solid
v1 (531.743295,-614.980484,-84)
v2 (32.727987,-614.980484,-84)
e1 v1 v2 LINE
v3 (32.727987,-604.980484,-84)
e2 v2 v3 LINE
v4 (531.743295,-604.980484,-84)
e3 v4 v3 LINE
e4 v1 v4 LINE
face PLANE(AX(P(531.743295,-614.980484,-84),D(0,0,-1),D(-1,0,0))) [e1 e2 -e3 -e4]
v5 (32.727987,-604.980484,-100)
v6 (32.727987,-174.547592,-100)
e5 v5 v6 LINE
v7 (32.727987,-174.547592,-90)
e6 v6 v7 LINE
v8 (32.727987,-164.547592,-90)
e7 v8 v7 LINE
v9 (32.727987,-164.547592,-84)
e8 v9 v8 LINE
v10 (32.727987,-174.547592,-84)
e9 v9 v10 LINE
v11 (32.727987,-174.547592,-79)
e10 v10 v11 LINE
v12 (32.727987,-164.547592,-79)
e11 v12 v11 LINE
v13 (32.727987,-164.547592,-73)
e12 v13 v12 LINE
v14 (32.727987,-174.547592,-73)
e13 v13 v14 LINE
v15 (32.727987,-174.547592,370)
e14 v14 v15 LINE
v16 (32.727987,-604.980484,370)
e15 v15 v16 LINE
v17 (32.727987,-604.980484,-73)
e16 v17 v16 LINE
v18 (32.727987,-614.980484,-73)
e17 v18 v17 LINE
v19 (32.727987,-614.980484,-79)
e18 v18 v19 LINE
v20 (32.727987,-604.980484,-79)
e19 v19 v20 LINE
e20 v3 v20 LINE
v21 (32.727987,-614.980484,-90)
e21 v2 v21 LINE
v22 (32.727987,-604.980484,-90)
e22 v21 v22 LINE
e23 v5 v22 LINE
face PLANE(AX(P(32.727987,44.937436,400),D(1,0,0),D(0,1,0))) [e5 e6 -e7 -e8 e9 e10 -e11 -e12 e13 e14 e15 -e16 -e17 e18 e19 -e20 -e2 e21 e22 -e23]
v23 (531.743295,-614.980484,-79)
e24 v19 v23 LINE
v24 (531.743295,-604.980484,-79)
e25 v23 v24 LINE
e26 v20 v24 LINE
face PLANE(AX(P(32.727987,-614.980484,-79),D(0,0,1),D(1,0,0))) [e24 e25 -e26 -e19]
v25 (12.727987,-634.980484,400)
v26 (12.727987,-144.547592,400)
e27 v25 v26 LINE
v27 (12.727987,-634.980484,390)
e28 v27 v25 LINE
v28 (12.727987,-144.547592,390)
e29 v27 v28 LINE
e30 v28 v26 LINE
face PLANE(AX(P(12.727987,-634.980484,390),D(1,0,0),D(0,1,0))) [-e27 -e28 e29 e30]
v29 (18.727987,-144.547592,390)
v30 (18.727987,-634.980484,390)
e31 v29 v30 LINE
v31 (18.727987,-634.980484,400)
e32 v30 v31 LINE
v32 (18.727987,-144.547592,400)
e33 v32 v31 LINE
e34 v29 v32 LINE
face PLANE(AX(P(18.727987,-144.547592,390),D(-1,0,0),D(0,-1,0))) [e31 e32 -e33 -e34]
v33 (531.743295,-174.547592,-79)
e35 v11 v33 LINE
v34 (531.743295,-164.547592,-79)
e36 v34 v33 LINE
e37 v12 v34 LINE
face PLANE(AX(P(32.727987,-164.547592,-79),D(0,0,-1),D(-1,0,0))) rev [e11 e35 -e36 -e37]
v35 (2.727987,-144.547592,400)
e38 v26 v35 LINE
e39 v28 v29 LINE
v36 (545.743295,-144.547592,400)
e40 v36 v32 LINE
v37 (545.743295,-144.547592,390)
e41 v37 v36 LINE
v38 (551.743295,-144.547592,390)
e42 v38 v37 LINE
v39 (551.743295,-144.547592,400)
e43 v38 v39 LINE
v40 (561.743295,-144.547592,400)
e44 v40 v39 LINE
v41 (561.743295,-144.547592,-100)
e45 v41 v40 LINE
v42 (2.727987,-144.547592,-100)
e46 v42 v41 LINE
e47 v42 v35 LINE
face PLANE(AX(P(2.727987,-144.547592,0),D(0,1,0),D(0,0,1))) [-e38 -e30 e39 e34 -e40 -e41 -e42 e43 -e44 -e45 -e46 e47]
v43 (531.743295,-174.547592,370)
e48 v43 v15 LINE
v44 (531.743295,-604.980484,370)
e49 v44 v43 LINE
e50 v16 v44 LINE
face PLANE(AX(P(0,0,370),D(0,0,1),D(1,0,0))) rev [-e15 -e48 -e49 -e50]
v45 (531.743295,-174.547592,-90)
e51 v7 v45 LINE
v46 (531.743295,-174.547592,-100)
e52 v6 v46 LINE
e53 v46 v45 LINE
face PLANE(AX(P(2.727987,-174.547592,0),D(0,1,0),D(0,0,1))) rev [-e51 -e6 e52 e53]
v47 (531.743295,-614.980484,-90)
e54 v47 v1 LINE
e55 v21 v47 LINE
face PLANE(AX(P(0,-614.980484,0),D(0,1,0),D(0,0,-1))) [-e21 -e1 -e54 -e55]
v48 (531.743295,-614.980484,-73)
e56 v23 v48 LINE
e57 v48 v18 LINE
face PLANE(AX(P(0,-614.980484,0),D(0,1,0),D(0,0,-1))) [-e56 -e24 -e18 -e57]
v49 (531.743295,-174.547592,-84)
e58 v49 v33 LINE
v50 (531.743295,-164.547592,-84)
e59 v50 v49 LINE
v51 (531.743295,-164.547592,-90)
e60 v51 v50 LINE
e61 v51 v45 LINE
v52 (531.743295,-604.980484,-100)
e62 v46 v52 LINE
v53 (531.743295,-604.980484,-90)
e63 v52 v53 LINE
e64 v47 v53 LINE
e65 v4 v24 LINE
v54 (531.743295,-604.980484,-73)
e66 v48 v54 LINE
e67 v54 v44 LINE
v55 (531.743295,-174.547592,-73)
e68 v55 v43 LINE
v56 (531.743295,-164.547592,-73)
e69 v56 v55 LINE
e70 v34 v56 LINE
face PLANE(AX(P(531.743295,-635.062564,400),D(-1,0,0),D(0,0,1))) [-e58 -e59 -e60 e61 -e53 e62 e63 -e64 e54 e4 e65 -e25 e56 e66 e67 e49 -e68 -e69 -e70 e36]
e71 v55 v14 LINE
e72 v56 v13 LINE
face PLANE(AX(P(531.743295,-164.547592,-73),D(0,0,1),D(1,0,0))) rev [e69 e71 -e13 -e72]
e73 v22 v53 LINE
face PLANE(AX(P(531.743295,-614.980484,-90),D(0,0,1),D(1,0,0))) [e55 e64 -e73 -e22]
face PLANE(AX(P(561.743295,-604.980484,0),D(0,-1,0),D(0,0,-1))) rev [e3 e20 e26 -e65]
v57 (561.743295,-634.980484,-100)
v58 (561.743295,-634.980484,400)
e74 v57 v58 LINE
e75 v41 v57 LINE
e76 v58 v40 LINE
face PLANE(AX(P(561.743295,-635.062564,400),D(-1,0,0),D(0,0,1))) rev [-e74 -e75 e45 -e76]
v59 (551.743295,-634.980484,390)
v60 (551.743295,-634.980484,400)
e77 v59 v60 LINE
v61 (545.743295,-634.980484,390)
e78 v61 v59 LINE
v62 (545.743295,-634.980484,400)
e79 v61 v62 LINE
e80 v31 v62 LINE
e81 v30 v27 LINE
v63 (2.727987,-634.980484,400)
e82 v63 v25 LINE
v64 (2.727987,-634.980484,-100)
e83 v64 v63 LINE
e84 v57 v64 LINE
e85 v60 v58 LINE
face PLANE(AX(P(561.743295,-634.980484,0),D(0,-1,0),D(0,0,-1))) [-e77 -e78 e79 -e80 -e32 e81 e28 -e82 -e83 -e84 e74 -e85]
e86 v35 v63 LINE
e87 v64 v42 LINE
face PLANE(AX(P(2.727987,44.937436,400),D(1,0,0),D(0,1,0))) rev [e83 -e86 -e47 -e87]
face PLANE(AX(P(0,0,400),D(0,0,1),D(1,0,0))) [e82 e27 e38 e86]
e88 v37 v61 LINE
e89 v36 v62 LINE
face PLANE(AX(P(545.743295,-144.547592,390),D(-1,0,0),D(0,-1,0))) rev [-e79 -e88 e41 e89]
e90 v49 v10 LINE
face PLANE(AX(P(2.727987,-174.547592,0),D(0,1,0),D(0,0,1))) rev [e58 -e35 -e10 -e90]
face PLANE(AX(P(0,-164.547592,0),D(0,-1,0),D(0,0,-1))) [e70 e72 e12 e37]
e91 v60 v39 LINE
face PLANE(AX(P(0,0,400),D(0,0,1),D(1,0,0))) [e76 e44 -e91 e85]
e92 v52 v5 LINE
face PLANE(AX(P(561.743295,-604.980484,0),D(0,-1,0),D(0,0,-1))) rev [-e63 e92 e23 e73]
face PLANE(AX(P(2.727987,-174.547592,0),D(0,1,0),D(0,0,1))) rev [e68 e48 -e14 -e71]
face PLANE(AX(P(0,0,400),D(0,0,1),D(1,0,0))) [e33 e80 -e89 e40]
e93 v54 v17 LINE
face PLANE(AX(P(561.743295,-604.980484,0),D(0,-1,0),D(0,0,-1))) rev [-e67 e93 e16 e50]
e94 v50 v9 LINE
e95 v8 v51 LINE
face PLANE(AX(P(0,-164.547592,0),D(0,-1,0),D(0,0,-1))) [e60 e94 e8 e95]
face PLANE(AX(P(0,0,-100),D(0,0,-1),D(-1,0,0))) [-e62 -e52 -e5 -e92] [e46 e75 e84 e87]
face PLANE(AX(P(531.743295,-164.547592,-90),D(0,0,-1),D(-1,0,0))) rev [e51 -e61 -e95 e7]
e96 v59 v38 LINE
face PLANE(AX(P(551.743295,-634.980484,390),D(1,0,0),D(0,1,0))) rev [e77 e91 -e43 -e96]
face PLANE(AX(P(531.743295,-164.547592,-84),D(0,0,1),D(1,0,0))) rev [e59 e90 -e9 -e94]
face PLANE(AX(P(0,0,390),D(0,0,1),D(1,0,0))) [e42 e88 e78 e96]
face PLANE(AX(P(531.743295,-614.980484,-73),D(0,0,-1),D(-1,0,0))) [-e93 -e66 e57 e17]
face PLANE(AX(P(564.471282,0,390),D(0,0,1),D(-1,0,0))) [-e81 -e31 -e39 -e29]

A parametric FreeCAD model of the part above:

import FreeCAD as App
import Part
import Sketcher


def faces_at(feature, points):
    """Names of the faces that lie closest to the given points."""
    faces = feature.Shape.Faces
    near = lambda p: min(range(len(faces)), key=lambda i: faces[i].distToShape(Part.Vertex(*p))[0])
    return sorted({f"Face{near(p) + 1}" for p in points})


def add_polygon(sketch, points):
    """Adds a closed chain of lines whose ends are joined by coincident constraints."""
    first, n = sketch.GeometryCount, len(points)
    for a, b in zip(points, points[1:] + points[:1]):
        sketch.addGeometry(Part.LineSegment(App.Vector(*a, 0), App.Vector(*b, 0)), False)
    for i in range(n):
        sketch.addConstraint(Sketcher.Constraint("Coincident", first + i, 2, first + (i + 1) % n, 1))

doc = App.newDocument("Part")
params = doc.addObject("Spreadsheet::Sheet", "Params")
for row, (alias, value) in enumerate([
    ("sketch1_height", "680 mm"),
    ("pad1_length", "400 mm"),
    ("sketch2_height", "875.38 mm"),
    ("pad2_length", "100 mm"),
    ("thickness_wall", "30 mm"),
    ("sketch4_height", "6 mm"),
    ("pocket2_length", "10 mm"),
    ("sketch5_height", "6 mm"),
    ("pocket3_length", "10 mm"),
    ("sketch6_width", "6 mm"),
    ("pocket4_length", "10 mm"),
], start=1):
    params.set(f"A{row}", alias)
    params.set(f"B{row}", "=" + value)
    params.setAlias(f"B{row}", alias)

body = doc.addObject("PartDesign::Body", "Body")

# Sketch on XY plane
sketch1 = body.newObject("Sketcher::SketchObject", "Sketch")
sketch1.AttachmentSupport = (doc.getObject("XY_Plane"), [""])
sketch1.MapMode = "FlatFace"
add_polygon(sketch1, [(3, 45), (3, -635), (562, -635), (562, 45)])  # lines 0-3
sketch1.addConstraint(Sketcher.Constraint("Vertical", 0))
sketch1.addConstraint(Sketcher.Constraint("Horizontal", 1))
sketch1.addConstraint(Sketcher.Constraint("Vertical", 2))
sketch1.addConstraint(Sketcher.Constraint("Horizontal", 3))
sketch1.addConstraint(Sketcher.Constraint("DistanceY", 0, 2, 0, 1, 680.0))
sketch1.addConstraint(Sketcher.Constraint("DistanceX", 1, 1, 1, 2, 559.015308))
sketch1.addConstraint(Sketcher.Constraint("DistanceX", -1, 1, 0, 2, 2.727987))
sketch1.addConstraint(Sketcher.Constraint("DistanceY", 0, 2, -1, 1, 635.062564))
sketch1.setExpression("Constraints[8]", "Params.sketch1_height")
pad1 = body.newObject("PartDesign::Pad", "Pad")
pad1.Profile = sketch1
pad1.setExpression("Length", "Params.pad1_length")

# Sketch on XY plane
sketch2 = body.newObject("Sketcher::SketchObject", "Sketch001")
sketch2.AttachmentSupport = (doc.getObject("XY_Plane"), [""])
sketch2.MapMode = "FlatFace"
sketch2.AttachmentOffset = App.Placement(App.Vector(0, 0, 400), App.Rotation())
add_polygon(sketch2, [(-95, 143), (-95, -733), (659, -733), (659, 143)])  # lines 0-3
add_polygon(sketch2, [(562, -635), (3, -635), (3, -145), (562, -145)])  # lines 4-7
sketch2.addConstraint(Sketcher.Constraint("Vertical", 0))
sketch2.addConstraint(Sketcher.Constraint("Horizontal", 1))
sketch2.addConstraint(Sketcher.Constraint("Vertical", 2))
sketch2.addConstraint(Sketcher.Constraint("Horizontal", 3))
sketch2.addConstraint(Sketcher.Constraint("Horizontal", 4))
sketch2.addConstraint(Sketcher.Constraint("Vertical", 5))
sketch2.addConstraint(Sketcher.Constraint("Horizontal", 6))
sketch2.addConstraint(Sketcher.Constraint("Vertical", 7))
sketch2.addConstraint(Sketcher.Constraint("DistanceY", 0, 2, 0, 1, 875.38))
sketch2.addConstraint(Sketcher.Constraint("DistanceX", 1, 1, 1, 2, 754.395))
sketch2.addConstraint(Sketcher.Constraint("DistanceY", 5, 1, 5, 2, 490.432892))
sketch2.addConstraint(Sketcher.Constraint("DistanceX", 4, 2, 4, 1, 559.015308))
sketch2.addConstraint(Sketcher.Constraint("DistanceY", 0, 2, 4, 2, 97.77227))
sketch2.addConstraint(Sketcher.Constraint("DistanceX", 0, 2, -1, 1, 94.962058))
sketch2.addConstraint(Sketcher.Constraint("DistanceY", 0, 2, -1, 1, 732.752754))
sketch2.addConstraint(Sketcher.Constraint("DistanceX", -1, 1, 4, 2, 2.727987))
sketch2.setExpression("Constraints[16]", "Params.sketch2_height")
pocket1 = body.newObject("PartDesign::Pocket", "Pocket")
pocket1.Profile = sketch2
pocket1.Type = "ThroughAll"

# Sketch on XY plane
sketch3 = body.newObject("Sketcher::SketchObject", "Sketch002")
sketch3.AttachmentSupport = (doc.getObject("XY_Plane"), [""])
sketch3.MapMode = "FlatFace"
add_polygon(sketch3, [(562, -145), (562, -635), (3, -635), (3, -145)])  # lines 0-3
sketch3.addConstraint(Sketcher.Constraint("Vertical", 0))
sketch3.addConstraint(Sketcher.Constraint("Horizontal", 1))
sketch3.addConstraint(Sketcher.Constraint("Vertical", 2))
sketch3.addConstraint(Sketcher.Constraint("Horizontal", 3))
sketch3.addConstraint(Sketcher.Constraint("DistanceY", 0, 2, 0, 1, 490.432892))
sketch3.addConstraint(Sketcher.Constraint("DistanceX", 1, 2, 1, 1, 559.015308))
sketch3.addConstraint(Sketcher.Constraint("DistanceX", -1, 1, 0, 2, 561.743295))
sketch3.addConstraint(Sketcher.Constraint("DistanceY", 0, 2, -1, 1, 634.980484))
pad2 = body.newObject("PartDesign::Pad", "Pad001")
pad2.Profile = sketch3
pad2.setExpression("Length", "Params.pad2_length")
pad2.Reversed = True
doc.recompute()

thickness = body.newObject("PartDesign::Thickness", "Thickness")
thickness.Base = (pad2, faces_at(pad2, [(282.236, -389.764, -100)]))
thickness.setExpression("Value", "Params.thickness_wall")
thickness.Reversed = True
thickness.Join = "Intersection"

# Sketch on XZ plane
sketch4 = body.newObject("Sketcher::SketchObject", "Sketch003")
sketch4.AttachmentSupport = (doc.getObject("XZ_Plane"), [""])
sketch4.MapMode = "FlatFace"
sketch4.AttachmentOffset = App.Placement(App.Vector(0, 0, 174.547592), App.Rotation())
add_polygon(sketch4, [(33, -84), (33, -90), (532, -90), (532, -84)])  # lines 0-3
sketch4.addConstraint(Sketcher.Constraint("Vertical", 0))
sketch4.addConstraint(Sketcher.Constraint("Horizontal", 1))
sketch4.addConstraint(Sketcher.Constraint("Vertical", 2))
sketch4.addConstraint(Sketcher.Constraint("Horizontal", 3))
sketch4.addConstraint(Sketcher.Constraint("DistanceY", 0, 2, 0, 1, 6.0))
sketch4.addConstraint(Sketcher.Constraint("DistanceY", 0, 2, -1, 1, 90.0))
sketch4.addConstraint(Sketcher.Constraint("DistanceX", 1, 1, 1, 2, 499.015308))
sketch4.addConstraint(Sketcher.Constraint("DistanceX", -1, 1, 0, 2, 32.727987))
sketch4.setExpression("Constraints[8]", "Params.sketch4_height")
pocket2 = body.newObject("PartDesign::Pocket", "Pocket001")
pocket2.Profile = sketch4
pocket2.setExpression("Length", "Params.pocket2_length")

# Sketch on XZ plane
sketch5 = body.newObject("Sketcher::SketchObject", "Sketch004")
sketch5.AttachmentSupport = (doc.getObject("XZ_Plane"), [""])
sketch5.MapMode = "FlatFace"
sketch5.AttachmentOffset = App.Placement(App.Vector(0, 0, 174.547592), App.Rotation())
add_polygon(sketch5, [(33, -73), (33, -79), (532, -79), (532, -73)])  # lines 0-3
sketch5.addConstraint(Sketcher.Constraint("Vertical", 0))
sketch5.addConstraint(Sketcher.Constraint("Horizontal", 1))
sketch5.addConstraint(Sketcher.Constraint("Vertical", 2))
sketch5.addConstraint(Sketcher.Constraint("Horizontal", 3))
sketch5.addConstraint(Sketcher.Constraint("DistanceY", 0, 2, 0, 1, 6.0))
sketch5.addConstraint(Sketcher.Constraint("DistanceY", 0, 2, -1, 1, 79.0))
sketch5.addConstraint(Sketcher.Constraint("DistanceX", 1, 1, 1, 2, 499.015308))
sketch5.addConstraint(Sketcher.Constraint("DistanceX", -1, 1, 0, 2, 32.727987))
sketch5.setExpression("Constraints[8]", "Params.sketch5_height")
pocket3 = body.newObject("PartDesign::Pocket", "Pocket002")
pocket3.Profile = sketch5
pocket3.setExpression("Length", "Params.pocket3_length")
doc.recompute()

datumplane = body.newObject("PartDesign::Plane", "DatumPlane")
datumplane.AttachmentSupport = (doc.getObject("XZ_Plane"), [""])
datumplane.MapMode = "FlatFace"
datumplane.AttachmentOffset = App.Placement(App.Vector(0, 0, 389.764038), App.Rotation())
mirrored = body.newObject("PartDesign::Mirrored", "Mirrored")
mirrored.Originals = [pocket2, pocket3]
mirrored.MirrorPlane = (datumplane, [""])
body.Tip = mirrored

# Sketch on XY plane
sketch6 = body.newObject("Sketcher::SketchObject", "Sketch005")
sketch6.AttachmentSupport = (doc.getObject("XY_Plane"), [""])
sketch6.MapMode = "FlatFace"
sketch6.AttachmentOffset = App.Placement(App.Vector(0, 0, 400), App.Rotation())
add_polygon(sketch6, [(546, -145), (546, -635), (552, -635), (552, -145)])  # lines 0-3
sketch6.addConstraint(Sketcher.Constraint("Vertical", 0))
sketch6.addConstraint(Sketcher.Constraint("Horizontal", 1))
sketch6.addConstraint(Sketcher.Constraint("Vertical", 2))
sketch6.addConstraint(Sketcher.Constraint("Horizontal", 3))
sketch6.addConstraint(Sketcher.Constraint("DistanceX", 1, 1, 1, 2, 6.0))
sketch6.addConstraint(Sketcher.Constraint("DistanceY", 0, 2, 0, 1, 490.432892))
sketch6.addConstraint(Sketcher.Constraint("DistanceX", -1, 1, 0, 2, 545.743295))
sketch6.addConstraint(Sketcher.Constraint("DistanceY", 0, 2, -1, 1, 634.980484))
sketch6.setExpression("Constraints[8]", "Params.sketch6_width")
pocket4 = body.newObject("PartDesign::Pocket", "Pocket003")
pocket4.Profile = sketch6
pocket4.setExpression("Length", "Params.pocket4_length")
doc.recompute()

datumplane2 = body.newObject("PartDesign::Plane", "DatumPlane001")
datumplane2.AttachmentSupport = (doc.getObject("YZ_Plane"), [""])
datumplane2.MapMode = "FlatFace"
datumplane2.AttachmentOffset = App.Placement(App.Vector(0, 0, 282.235641), App.Rotation())
mirrored2 = body.newObject("PartDesign::Mirrored", "Mirrored001")
mirrored2.Originals = [pocket4]
mirrored2.MirrorPlane = (datumplane2, [""])
body.Tip = mirrored2

doc.recompute()
